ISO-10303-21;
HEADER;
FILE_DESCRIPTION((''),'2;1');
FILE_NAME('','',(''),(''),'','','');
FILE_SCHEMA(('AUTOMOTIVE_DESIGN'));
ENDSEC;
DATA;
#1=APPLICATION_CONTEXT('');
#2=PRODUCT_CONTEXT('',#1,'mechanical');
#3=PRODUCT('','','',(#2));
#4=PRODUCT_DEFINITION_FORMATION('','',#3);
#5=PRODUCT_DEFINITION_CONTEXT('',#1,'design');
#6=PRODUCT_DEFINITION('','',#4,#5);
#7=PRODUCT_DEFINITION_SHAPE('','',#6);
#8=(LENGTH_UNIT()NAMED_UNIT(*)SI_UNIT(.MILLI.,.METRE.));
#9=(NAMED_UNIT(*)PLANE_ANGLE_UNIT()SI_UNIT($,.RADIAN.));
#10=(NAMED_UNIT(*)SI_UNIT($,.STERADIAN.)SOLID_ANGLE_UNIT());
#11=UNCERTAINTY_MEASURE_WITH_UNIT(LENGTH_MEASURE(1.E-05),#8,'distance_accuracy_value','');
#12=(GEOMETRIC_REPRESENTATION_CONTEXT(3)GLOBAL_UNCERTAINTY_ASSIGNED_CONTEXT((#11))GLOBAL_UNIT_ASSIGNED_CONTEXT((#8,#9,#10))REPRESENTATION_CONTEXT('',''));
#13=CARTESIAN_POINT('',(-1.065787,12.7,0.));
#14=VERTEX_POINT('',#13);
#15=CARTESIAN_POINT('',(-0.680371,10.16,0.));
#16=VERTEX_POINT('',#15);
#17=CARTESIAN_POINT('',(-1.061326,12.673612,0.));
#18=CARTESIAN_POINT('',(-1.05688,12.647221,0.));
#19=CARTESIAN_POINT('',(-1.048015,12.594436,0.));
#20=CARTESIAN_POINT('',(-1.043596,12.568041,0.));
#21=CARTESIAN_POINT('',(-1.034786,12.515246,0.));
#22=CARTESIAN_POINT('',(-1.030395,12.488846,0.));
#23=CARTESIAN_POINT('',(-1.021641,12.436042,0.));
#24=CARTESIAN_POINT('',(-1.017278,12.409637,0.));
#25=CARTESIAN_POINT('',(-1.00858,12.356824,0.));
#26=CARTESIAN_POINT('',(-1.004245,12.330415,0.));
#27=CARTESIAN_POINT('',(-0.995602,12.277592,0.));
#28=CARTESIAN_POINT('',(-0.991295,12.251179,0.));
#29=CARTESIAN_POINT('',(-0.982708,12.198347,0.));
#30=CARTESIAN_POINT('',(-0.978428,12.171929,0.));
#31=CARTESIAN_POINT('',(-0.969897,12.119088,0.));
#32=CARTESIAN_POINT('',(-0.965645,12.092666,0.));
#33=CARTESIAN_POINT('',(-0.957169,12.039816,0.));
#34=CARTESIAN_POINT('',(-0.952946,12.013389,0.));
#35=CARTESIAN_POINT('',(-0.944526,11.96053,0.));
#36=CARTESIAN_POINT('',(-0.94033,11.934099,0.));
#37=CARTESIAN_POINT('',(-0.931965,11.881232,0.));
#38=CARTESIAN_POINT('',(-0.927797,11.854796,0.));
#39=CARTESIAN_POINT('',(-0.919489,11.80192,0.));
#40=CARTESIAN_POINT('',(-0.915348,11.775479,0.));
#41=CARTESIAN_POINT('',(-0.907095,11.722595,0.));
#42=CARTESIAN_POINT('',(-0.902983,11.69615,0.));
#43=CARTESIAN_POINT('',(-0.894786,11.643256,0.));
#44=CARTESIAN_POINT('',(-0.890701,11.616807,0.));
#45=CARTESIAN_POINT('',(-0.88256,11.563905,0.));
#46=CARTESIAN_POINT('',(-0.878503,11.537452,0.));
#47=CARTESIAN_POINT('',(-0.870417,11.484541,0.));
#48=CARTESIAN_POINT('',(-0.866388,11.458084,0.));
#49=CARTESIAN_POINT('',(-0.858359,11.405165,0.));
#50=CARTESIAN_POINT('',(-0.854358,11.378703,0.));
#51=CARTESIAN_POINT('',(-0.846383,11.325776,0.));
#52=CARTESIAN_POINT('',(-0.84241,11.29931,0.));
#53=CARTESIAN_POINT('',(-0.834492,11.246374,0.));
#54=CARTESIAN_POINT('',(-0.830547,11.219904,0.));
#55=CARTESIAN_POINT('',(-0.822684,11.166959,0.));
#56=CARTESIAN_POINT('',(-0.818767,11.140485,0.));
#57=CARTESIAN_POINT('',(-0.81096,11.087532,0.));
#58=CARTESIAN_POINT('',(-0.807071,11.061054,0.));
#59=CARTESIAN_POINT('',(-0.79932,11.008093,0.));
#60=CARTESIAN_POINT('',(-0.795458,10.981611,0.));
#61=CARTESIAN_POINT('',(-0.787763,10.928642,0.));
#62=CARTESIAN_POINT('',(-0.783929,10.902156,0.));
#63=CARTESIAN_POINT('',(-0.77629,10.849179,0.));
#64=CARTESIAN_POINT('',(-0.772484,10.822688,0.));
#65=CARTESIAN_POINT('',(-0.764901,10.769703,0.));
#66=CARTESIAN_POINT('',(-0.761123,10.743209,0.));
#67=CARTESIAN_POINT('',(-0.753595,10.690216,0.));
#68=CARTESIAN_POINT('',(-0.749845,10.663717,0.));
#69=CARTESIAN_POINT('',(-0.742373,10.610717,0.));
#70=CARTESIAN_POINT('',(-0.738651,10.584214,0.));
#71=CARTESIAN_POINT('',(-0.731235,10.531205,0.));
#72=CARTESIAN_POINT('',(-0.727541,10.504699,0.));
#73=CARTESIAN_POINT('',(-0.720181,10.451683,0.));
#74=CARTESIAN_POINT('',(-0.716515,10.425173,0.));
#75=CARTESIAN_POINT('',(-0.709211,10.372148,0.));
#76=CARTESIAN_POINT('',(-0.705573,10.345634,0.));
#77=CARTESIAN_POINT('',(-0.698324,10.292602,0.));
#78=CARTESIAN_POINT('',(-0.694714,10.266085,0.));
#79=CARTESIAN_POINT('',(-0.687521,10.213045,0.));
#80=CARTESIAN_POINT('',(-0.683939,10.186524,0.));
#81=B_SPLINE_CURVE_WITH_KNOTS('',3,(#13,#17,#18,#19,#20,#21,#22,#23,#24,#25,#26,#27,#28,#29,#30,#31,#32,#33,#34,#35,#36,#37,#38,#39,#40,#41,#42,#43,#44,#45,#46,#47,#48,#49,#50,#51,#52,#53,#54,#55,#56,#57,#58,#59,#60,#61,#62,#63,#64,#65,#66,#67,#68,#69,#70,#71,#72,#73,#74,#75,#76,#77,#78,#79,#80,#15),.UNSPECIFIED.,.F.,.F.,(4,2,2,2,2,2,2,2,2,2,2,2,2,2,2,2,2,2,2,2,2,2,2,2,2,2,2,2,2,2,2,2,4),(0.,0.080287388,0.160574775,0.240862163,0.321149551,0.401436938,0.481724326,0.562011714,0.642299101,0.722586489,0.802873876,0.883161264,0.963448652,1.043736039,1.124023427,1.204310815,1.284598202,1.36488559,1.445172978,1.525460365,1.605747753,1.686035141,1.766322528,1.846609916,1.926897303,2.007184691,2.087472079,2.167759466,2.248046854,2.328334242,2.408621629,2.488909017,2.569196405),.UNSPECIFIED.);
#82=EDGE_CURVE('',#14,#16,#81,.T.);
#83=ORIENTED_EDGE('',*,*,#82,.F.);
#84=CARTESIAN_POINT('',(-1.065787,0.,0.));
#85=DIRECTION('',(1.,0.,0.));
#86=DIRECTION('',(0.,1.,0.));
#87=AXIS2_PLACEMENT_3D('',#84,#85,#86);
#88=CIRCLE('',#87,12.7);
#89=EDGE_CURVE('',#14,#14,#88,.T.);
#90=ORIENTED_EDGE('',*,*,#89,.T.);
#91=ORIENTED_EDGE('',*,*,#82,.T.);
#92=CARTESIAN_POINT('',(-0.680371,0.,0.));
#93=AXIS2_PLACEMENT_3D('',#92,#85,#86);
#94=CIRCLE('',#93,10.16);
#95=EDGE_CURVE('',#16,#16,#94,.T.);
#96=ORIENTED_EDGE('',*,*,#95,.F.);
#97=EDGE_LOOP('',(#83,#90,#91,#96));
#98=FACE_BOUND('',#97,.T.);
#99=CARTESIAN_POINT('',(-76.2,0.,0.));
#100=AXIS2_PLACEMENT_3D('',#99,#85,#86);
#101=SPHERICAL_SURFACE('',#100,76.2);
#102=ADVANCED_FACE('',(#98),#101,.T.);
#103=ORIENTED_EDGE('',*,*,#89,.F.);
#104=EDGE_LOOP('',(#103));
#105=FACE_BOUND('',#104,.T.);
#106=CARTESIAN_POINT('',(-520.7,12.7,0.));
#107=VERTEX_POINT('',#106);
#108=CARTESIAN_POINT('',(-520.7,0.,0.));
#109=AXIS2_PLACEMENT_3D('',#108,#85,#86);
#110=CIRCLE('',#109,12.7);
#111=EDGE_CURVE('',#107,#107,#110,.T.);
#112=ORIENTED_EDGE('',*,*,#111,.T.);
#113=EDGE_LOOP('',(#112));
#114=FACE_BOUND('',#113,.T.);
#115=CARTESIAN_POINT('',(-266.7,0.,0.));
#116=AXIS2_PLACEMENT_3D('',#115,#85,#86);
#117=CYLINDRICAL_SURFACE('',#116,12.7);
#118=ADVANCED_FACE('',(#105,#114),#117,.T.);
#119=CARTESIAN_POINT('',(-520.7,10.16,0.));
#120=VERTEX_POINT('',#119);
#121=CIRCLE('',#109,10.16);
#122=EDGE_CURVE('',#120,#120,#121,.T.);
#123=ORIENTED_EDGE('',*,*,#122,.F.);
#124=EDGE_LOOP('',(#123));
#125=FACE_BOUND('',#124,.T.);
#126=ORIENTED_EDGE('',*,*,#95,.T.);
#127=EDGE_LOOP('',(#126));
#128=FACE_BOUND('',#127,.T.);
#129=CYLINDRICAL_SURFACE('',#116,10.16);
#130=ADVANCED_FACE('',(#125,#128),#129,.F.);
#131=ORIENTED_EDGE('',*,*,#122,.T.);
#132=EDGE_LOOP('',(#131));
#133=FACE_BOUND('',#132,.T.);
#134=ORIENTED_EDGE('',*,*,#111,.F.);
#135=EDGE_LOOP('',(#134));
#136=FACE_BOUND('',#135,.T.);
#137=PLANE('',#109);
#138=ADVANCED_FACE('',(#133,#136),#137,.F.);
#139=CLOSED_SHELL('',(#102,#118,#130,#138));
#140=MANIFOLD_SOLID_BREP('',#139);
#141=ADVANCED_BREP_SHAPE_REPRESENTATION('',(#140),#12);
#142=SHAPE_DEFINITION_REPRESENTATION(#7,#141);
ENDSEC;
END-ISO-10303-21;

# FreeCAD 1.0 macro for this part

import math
import FreeCAD as App
import Part
import Sketcher
Q = App.Units.Quantity

doc = App.newDocument("Part")
body = doc.addObject("PartDesign::Body", "Body")

# Sketch on XY plane
sketch1 = body.newObject("Sketcher::SketchObject", "Sketch")
sketch1.AttachmentSupport = (doc.getObject("XY_Plane"), [""])
sketch1.MapMode = "FlatFace"
sketch1.addGeometry([
    Part.ArcOfCircle(Part.Circle(App.Vector(-76.2, 0, 0), App.Vector(0, 0, 1), 76.2), math.radians(7.66), math.radians(9.59)),
    Part.LineSegment(App.Vector(-1.1, 12.7, 0), App.Vector(-520.7, 12.7, 0)),
    Part.LineSegment(App.Vector(-520.7, 12.7, 0), App.Vector(-520.7, 10.2, 0)),
    Part.LineSegment(App.Vector(-520.7, 10.2, 0), App.Vector(-0.7, 10.2, 0)),
], False)
sketch1.addConstraint([
    Sketcher.Constraint("Coincident", 0, 2, 1, 1),
    Sketcher.Constraint("Coincident", 1, 2, 2, 1),
    Sketcher.Constraint("Coincident", 2, 2, 3, 1),
    Sketcher.Constraint("Coincident", 3, 2, 0, 1),
    Sketcher.Constraint("Horizontal", 1),
    Sketcher.Constraint("Vertical", 2),
    Sketcher.Constraint("Horizontal", 3),
    Sketcher.Constraint("PointOnObject", 0, 3, -1),
    Sketcher.Constraint("Radius", 0, Q("2.9999999 in")),
    Sketcher.Constraint("DistanceY", 2, 2, 2, 1, Q("0.1 in")),
    Sketcher.Constraint("DistanceX", 0, 3, -1, 1, Q("2.9999999 in")),
    Sketcher.Constraint("DistanceY", -1, 1, 0, 2, Q("0.5 in")),
    Sketcher.Constraint("DistanceX", 1, 2, -1, 1, Q("20.5 in")),
])
revolution = body.newObject("PartDesign::Revolution", "Revolution")
revolution.Profile = sketch1
revolution.ReferenceAxis = (sketch1, ["H_Axis"])
revolution.Angle = 360

doc.recompute()
